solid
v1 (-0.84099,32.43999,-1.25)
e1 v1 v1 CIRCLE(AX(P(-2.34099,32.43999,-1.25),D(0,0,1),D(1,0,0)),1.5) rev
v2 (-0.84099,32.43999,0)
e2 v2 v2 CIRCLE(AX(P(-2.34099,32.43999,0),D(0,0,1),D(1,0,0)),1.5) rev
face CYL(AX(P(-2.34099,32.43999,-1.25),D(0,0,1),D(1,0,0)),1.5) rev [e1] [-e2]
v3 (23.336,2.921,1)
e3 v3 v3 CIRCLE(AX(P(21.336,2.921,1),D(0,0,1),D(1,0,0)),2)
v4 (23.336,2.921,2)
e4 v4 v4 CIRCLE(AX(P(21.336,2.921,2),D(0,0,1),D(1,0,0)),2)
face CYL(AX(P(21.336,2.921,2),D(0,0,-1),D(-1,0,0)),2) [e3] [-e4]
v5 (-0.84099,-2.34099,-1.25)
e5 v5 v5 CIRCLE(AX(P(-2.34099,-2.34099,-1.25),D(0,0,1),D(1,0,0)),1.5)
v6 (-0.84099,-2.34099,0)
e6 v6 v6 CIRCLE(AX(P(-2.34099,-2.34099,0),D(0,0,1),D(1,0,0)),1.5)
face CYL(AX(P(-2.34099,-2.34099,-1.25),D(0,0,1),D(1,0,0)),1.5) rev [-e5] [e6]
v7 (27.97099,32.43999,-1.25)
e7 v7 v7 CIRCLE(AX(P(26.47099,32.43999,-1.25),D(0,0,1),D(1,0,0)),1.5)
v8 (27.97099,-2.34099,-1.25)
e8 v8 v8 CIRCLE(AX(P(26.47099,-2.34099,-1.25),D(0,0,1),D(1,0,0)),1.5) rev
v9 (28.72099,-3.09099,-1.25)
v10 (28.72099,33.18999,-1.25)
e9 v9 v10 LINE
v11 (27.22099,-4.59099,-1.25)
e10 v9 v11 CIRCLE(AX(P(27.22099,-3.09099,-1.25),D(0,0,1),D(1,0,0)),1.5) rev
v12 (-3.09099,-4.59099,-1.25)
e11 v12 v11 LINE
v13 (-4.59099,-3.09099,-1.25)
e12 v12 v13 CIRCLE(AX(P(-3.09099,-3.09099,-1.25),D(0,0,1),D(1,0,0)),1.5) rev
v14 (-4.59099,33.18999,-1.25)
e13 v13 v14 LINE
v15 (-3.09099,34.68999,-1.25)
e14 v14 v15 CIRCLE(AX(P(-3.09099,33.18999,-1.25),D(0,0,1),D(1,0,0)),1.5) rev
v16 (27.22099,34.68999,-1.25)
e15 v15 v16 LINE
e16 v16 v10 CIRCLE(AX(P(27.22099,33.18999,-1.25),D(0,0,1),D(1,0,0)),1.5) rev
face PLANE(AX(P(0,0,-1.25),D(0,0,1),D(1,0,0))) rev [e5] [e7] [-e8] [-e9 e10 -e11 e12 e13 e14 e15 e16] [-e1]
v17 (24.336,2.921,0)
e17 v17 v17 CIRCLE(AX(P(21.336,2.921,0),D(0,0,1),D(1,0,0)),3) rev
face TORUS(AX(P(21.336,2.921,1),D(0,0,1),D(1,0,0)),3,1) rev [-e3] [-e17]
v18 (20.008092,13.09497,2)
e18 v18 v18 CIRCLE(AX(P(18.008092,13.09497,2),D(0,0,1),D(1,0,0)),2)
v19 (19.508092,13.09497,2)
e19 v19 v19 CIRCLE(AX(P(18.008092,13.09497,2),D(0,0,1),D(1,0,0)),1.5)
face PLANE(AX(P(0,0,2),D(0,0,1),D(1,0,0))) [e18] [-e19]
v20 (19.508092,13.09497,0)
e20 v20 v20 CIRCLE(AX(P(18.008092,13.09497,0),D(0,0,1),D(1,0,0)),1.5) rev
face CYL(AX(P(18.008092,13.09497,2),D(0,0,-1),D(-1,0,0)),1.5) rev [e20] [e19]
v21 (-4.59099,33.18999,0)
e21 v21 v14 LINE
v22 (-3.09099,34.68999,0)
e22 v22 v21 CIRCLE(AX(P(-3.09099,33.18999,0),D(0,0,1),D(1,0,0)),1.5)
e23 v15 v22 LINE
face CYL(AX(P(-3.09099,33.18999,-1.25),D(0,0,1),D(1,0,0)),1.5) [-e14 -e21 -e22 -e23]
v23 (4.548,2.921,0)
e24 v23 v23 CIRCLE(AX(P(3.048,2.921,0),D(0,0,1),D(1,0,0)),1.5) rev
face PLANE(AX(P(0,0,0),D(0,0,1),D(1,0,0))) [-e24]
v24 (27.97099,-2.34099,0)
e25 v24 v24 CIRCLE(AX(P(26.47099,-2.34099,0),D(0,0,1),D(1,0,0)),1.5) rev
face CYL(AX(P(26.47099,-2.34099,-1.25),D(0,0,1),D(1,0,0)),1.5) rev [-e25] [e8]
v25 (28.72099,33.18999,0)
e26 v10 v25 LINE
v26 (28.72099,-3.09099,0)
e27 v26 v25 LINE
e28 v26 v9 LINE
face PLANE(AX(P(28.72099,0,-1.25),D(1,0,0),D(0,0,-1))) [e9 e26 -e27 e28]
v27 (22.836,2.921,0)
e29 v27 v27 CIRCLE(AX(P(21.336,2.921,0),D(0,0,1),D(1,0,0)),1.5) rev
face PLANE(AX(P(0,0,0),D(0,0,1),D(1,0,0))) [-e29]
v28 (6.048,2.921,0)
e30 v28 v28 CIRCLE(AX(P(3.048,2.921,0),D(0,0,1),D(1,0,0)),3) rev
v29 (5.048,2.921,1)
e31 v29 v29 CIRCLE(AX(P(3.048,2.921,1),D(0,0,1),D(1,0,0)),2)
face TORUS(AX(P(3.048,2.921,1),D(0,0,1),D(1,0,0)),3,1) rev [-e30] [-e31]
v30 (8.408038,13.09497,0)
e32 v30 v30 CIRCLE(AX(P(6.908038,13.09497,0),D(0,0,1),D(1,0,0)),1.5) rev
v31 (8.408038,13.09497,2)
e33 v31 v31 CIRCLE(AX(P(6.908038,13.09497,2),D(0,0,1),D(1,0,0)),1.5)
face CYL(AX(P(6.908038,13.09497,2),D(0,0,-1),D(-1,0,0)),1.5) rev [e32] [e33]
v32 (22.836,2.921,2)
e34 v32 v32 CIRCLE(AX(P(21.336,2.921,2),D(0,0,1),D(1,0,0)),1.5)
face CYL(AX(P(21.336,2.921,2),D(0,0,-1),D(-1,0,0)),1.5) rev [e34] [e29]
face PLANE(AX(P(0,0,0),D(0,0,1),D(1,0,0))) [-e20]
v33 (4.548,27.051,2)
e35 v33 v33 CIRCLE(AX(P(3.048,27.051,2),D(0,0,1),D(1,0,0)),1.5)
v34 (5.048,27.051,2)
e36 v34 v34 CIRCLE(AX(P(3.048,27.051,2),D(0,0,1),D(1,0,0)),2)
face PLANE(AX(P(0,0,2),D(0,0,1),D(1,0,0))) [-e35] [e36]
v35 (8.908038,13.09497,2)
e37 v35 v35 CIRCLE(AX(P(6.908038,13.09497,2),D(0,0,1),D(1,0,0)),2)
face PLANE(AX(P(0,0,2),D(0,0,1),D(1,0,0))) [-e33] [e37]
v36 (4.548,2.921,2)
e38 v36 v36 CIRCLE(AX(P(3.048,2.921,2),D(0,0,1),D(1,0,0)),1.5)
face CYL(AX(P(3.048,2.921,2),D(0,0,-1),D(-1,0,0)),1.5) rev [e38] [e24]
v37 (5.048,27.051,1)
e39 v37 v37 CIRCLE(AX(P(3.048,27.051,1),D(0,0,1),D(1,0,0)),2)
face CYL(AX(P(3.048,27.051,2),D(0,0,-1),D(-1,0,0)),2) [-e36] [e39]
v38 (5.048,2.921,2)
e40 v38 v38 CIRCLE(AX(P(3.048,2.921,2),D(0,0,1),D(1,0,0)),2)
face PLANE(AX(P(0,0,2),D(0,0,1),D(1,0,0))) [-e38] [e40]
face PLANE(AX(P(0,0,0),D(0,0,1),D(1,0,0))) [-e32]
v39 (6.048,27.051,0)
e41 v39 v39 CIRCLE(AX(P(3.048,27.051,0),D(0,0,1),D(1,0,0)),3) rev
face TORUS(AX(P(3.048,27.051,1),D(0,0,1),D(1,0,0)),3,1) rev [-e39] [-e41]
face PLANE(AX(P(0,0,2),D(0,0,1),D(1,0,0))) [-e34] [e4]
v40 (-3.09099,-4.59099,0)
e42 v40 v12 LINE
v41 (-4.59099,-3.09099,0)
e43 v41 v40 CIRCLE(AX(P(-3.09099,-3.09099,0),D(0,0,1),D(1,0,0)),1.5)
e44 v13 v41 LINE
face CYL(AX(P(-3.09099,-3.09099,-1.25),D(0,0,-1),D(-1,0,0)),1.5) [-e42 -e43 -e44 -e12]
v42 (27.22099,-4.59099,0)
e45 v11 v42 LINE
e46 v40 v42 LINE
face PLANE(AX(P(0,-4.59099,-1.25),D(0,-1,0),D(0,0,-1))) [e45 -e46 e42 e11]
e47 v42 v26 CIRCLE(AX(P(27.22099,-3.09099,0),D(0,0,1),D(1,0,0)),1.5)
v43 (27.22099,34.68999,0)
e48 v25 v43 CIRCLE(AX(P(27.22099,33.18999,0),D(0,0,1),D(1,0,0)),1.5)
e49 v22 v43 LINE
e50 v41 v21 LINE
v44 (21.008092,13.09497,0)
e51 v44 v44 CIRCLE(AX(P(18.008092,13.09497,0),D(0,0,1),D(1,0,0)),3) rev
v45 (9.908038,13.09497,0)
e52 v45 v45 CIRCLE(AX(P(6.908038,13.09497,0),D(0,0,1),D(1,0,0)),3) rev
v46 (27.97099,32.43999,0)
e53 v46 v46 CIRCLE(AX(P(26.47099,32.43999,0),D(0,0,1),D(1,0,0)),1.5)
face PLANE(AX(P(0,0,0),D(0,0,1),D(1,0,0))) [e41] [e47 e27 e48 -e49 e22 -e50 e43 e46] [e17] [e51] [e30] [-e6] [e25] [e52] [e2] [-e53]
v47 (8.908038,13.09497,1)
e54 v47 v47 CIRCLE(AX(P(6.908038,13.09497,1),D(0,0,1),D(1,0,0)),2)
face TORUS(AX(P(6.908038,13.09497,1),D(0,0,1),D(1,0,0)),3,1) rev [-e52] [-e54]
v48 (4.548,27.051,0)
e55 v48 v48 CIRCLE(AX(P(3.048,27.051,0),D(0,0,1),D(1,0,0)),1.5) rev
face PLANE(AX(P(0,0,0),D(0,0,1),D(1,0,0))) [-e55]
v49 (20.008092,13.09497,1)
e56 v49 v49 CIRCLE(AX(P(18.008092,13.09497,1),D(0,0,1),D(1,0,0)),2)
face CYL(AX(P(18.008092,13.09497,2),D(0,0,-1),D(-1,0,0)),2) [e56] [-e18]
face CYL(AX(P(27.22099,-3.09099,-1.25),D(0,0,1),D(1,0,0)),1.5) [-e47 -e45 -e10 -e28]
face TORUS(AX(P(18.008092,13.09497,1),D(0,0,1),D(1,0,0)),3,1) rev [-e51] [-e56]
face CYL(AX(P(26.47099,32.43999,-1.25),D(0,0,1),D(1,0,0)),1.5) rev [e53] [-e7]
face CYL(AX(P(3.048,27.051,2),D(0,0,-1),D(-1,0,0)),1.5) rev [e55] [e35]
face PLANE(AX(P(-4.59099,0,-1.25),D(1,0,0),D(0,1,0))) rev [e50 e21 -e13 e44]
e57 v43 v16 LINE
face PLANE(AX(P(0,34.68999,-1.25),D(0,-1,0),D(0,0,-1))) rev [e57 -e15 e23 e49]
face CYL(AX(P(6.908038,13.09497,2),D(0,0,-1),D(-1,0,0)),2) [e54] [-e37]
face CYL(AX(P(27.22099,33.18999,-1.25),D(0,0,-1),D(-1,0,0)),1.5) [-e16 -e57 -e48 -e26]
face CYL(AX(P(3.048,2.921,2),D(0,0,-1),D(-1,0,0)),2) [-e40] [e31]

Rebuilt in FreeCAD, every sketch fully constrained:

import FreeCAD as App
import Part
import Sketcher

V = App.Vector


def edges_at(feature, points):
    """Names of the edges that pass closest to the given points."""
    edges = feature.Shape.Edges
    near = lambda p: min(range(len(edges)), key=lambda i: edges[i].distToShape(Part.Vertex(*p))[0])
    return sorted({f"Edge{near(p) + 1}" for p in points})


def add_polygon(sketch, points):
    """Adds a closed chain of lines whose ends are joined by coincident constraints."""
    first, n = sketch.GeometryCount, len(points)
    for a, b in zip(points, points[1:] + points[:1]):
        sketch.addGeometry(Part.LineSegment(App.Vector(*a, 0), App.Vector(*b, 0)), False)
    for i in range(n):
        sketch.addConstraint(Sketcher.Constraint("Coincident", first + i, 2, first + (i + 1) % n, 1))

doc = App.newDocument("Part")
body = doc.addObject("PartDesign::Body", "Body")

# Sketch on XY plane
sketch1 = body.newObject("Sketcher::SketchObject", "Sketch")
sketch1.AttachmentSupport = (doc.getObject("XY_Plane"), [""])
sketch1.MapMode = "FlatFace"
add_polygon(sketch1, [(-4.6, 34.7), (-4.6, -4.6), (28.7, -4.6), (28.7, 34.7)])  # lines 0-3
sketch1.addGeometry(Part.Circle(V(-2.3, -2.3, 0), V(0, 0, 1), 1.5), False)  # 4
sketch1.addGeometry(Part.Circle(V(26.5, -2.3, 0), V(0, 0, 1), 1.5), False)  # 5
sketch1.addGeometry(Part.Circle(V(-2.3, 32.4, 0), V(0, 0, 1), 1.5), False)  # 6
sketch1.addGeometry(Part.Circle(V(26.5, 32.4, 0), V(0, 0, 1), 1.5), False)  # 7
sketch1.addConstraint(Sketcher.Constraint("Vertical", 0))
sketch1.addConstraint(Sketcher.Constraint("Horizontal", 1))
sketch1.addConstraint(Sketcher.Constraint("Vertical", 2))
sketch1.addConstraint(Sketcher.Constraint("Horizontal", 3))
sketch1.addConstraint(Sketcher.Constraint("Equal", 4, 5))
sketch1.addConstraint(Sketcher.Constraint("Equal", 5, 6))
sketch1.addConstraint(Sketcher.Constraint("Equal", 6, 7))
sketch1.addConstraint(Sketcher.Constraint("Horizontal", 4, 3, 5, 3))
sketch1.addConstraint(Sketcher.Constraint("Horizontal", 6, 3, 7, 3))
sketch1.addConstraint(Sketcher.Constraint("Vertical", 4, 3, 6, 3))
sketch1.addConstraint(Sketcher.Constraint("Vertical", 5, 3, 7, 3))
sketch1.addConstraint(Sketcher.Constraint("Diameter", 4, 3.0))
sketch1.addConstraint(Sketcher.Constraint("DistanceX", 0, 2, 4, 3, 2.25))
sketch1.addConstraint(Sketcher.Constraint("DistanceY", 0, 2, 4, 3, 2.25))
sketch1.addConstraint(Sketcher.Constraint("DistanceX", 5, 3, 1, 2, 2.25))
sketch1.addConstraint(Sketcher.Constraint("DistanceY", 7, 3, 2, 2, 2.25))
sketch1.addConstraint(Sketcher.Constraint("DistanceX", 1, 1, 1, 2, 33.311981))
sketch1.addConstraint(Sketcher.Constraint("DistanceY", 0, 2, 0, 1, 39.280981))
sketch1.addConstraint(Sketcher.Constraint("DistanceX", 4, 3, -1, 1, 2.34099))
sketch1.addConstraint(Sketcher.Constraint("DistanceY", 4, 3, -1, 1, 2.34099))
pad1 = body.newObject("PartDesign::Pad", "Pad")
pad1.Profile = sketch1
pad1.Length = 1.25
pad1.Reversed = True
doc.recompute()

fillet = body.newObject("PartDesign::Fillet", "Fillet")
fillet.Base = (pad1, edges_at(pad1, [
    (-4.591, -4.591, -0.625),
    (-4.591, 34.69, -0.625),
    (28.721, 34.69, -0.625),
    (28.721, -4.591, -0.625),
]))
fillet.Radius = 1.5

# Sketch on XY plane
sketch2 = body.newObject("Sketcher::SketchObject", "Sketch001")
sketch2.AttachmentSupport = (doc.getObject("XY_Plane"), [""])
sketch2.MapMode = "FlatFace"
sketch2.addGeometry(Part.Circle(V(3, 27.1, 0), V(0, 0, 1), 2), False)
sketch2.addGeometry(Part.Circle(V(3, 27.1, 0), V(0, 0, 1), 1.5), False)
sketch2.addGeometry(Part.Circle(V(6.9, 13.1, 0), V(0, 0, 1), 2), False)
sketch2.addGeometry(Part.Circle(V(6.9, 13.1, 0), V(0, 0, 1), 1.5), False)
sketch2.addGeometry(Part.Circle(V(18, 13.1, 0), V(0, 0, 1), 2), False)
sketch2.addGeometry(Part.Circle(V(18, 13.1, 0), V(0, 0, 1), 1.5), False)
sketch2.addGeometry(Part.Circle(V(21.3, 2.9, 0), V(0, 0, 1), 2), False)
sketch2.addGeometry(Part.Circle(V(21.3, 2.9, 0), V(0, 0, 1), 1.5), False)
sketch2.addGeometry(Part.Circle(V(3, 2.9, 0), V(0, 0, 1), 2), False)
sketch2.addGeometry(Part.Circle(V(3, 2.9, 0), V(0, 0, 1), 1.5), False)
sketch2.addConstraint(Sketcher.Constraint("Coincident", 1, 3, 0, 3))
sketch2.addConstraint(Sketcher.Constraint("Coincident", 3, 3, 2, 3))
sketch2.addConstraint(Sketcher.Constraint("Coincident", 5, 3, 4, 3))
sketch2.addConstraint(Sketcher.Constraint("Coincident", 7, 3, 6, 3))
sketch2.addConstraint(Sketcher.Constraint("Coincident", 9, 3, 8, 3))
sketch2.addConstraint(Sketcher.Constraint("Equal", 0, 2))
sketch2.addConstraint(Sketcher.Constraint("Equal", 1, 3))
sketch2.addConstraint(Sketcher.Constraint("Equal", 2, 4))
sketch2.addConstraint(Sketcher.Constraint("Equal", 3, 5))
sketch2.addConstraint(Sketcher.Constraint("Equal", 4, 6))
sketch2.addConstraint(Sketcher.Constraint("Equal", 5, 7))
sketch2.addConstraint(Sketcher.Constraint("Equal", 6, 8))
sketch2.addConstraint(Sketcher.Constraint("Equal", 7, 9))
sketch2.addConstraint(Sketcher.Constraint("Horizontal", 3, 3, 4, 3))
sketch2.addConstraint(Sketcher.Constraint("Horizontal", 7, 3, 8, 3))
sketch2.addConstraint(Sketcher.Constraint("Vertical", 1, 3, 8, 3))
sketch2.addConstraint(Sketcher.Constraint("Diameter", 0, 4.0))
sketch2.addConstraint(Sketcher.Constraint("Diameter", 1, 3.0))
sketch2.addConstraint(Sketcher.Constraint("DistanceY", 6, 3, 0, 3, 24.13))
sketch2.addConstraint(Sketcher.Constraint("DistanceX", -1, 1, 0, 3, 3.048))
sketch2.addConstraint(Sketcher.Constraint("DistanceY", -1, 1, 0, 3, 27.051))
sketch2.addConstraint(Sketcher.Constraint("DistanceX", -1, 1, 6, 3, 21.336))
sketch2.addConstraint(Sketcher.Constraint("DistanceX", -1, 1, 2, 3, 6.908038))
sketch2.addConstraint(Sketcher.Constraint("DistanceY", -1, 1, 2, 3, 13.09497))
sketch2.addConstraint(Sketcher.Constraint("DistanceX", -1, 1, 4, 3, 18.008092))
pad2 = body.newObject("PartDesign::Pad", "Pad001")
pad2.Profile = sketch2
pad2.Length = 2
doc.recompute()

fillet2 = body.newObject("PartDesign::Fillet", "Fillet001")
fillet2.Base = (pad2, edges_at(pad2, [
    (1.048, 27.051, 0),
    (4.908, 13.095, 0),
    (16.008, 13.095, 0),
    (19.336, 2.921, 0),
    (1.048, 2.921, 0),
]))
fillet2.Radius = 1

doc.recompute()
